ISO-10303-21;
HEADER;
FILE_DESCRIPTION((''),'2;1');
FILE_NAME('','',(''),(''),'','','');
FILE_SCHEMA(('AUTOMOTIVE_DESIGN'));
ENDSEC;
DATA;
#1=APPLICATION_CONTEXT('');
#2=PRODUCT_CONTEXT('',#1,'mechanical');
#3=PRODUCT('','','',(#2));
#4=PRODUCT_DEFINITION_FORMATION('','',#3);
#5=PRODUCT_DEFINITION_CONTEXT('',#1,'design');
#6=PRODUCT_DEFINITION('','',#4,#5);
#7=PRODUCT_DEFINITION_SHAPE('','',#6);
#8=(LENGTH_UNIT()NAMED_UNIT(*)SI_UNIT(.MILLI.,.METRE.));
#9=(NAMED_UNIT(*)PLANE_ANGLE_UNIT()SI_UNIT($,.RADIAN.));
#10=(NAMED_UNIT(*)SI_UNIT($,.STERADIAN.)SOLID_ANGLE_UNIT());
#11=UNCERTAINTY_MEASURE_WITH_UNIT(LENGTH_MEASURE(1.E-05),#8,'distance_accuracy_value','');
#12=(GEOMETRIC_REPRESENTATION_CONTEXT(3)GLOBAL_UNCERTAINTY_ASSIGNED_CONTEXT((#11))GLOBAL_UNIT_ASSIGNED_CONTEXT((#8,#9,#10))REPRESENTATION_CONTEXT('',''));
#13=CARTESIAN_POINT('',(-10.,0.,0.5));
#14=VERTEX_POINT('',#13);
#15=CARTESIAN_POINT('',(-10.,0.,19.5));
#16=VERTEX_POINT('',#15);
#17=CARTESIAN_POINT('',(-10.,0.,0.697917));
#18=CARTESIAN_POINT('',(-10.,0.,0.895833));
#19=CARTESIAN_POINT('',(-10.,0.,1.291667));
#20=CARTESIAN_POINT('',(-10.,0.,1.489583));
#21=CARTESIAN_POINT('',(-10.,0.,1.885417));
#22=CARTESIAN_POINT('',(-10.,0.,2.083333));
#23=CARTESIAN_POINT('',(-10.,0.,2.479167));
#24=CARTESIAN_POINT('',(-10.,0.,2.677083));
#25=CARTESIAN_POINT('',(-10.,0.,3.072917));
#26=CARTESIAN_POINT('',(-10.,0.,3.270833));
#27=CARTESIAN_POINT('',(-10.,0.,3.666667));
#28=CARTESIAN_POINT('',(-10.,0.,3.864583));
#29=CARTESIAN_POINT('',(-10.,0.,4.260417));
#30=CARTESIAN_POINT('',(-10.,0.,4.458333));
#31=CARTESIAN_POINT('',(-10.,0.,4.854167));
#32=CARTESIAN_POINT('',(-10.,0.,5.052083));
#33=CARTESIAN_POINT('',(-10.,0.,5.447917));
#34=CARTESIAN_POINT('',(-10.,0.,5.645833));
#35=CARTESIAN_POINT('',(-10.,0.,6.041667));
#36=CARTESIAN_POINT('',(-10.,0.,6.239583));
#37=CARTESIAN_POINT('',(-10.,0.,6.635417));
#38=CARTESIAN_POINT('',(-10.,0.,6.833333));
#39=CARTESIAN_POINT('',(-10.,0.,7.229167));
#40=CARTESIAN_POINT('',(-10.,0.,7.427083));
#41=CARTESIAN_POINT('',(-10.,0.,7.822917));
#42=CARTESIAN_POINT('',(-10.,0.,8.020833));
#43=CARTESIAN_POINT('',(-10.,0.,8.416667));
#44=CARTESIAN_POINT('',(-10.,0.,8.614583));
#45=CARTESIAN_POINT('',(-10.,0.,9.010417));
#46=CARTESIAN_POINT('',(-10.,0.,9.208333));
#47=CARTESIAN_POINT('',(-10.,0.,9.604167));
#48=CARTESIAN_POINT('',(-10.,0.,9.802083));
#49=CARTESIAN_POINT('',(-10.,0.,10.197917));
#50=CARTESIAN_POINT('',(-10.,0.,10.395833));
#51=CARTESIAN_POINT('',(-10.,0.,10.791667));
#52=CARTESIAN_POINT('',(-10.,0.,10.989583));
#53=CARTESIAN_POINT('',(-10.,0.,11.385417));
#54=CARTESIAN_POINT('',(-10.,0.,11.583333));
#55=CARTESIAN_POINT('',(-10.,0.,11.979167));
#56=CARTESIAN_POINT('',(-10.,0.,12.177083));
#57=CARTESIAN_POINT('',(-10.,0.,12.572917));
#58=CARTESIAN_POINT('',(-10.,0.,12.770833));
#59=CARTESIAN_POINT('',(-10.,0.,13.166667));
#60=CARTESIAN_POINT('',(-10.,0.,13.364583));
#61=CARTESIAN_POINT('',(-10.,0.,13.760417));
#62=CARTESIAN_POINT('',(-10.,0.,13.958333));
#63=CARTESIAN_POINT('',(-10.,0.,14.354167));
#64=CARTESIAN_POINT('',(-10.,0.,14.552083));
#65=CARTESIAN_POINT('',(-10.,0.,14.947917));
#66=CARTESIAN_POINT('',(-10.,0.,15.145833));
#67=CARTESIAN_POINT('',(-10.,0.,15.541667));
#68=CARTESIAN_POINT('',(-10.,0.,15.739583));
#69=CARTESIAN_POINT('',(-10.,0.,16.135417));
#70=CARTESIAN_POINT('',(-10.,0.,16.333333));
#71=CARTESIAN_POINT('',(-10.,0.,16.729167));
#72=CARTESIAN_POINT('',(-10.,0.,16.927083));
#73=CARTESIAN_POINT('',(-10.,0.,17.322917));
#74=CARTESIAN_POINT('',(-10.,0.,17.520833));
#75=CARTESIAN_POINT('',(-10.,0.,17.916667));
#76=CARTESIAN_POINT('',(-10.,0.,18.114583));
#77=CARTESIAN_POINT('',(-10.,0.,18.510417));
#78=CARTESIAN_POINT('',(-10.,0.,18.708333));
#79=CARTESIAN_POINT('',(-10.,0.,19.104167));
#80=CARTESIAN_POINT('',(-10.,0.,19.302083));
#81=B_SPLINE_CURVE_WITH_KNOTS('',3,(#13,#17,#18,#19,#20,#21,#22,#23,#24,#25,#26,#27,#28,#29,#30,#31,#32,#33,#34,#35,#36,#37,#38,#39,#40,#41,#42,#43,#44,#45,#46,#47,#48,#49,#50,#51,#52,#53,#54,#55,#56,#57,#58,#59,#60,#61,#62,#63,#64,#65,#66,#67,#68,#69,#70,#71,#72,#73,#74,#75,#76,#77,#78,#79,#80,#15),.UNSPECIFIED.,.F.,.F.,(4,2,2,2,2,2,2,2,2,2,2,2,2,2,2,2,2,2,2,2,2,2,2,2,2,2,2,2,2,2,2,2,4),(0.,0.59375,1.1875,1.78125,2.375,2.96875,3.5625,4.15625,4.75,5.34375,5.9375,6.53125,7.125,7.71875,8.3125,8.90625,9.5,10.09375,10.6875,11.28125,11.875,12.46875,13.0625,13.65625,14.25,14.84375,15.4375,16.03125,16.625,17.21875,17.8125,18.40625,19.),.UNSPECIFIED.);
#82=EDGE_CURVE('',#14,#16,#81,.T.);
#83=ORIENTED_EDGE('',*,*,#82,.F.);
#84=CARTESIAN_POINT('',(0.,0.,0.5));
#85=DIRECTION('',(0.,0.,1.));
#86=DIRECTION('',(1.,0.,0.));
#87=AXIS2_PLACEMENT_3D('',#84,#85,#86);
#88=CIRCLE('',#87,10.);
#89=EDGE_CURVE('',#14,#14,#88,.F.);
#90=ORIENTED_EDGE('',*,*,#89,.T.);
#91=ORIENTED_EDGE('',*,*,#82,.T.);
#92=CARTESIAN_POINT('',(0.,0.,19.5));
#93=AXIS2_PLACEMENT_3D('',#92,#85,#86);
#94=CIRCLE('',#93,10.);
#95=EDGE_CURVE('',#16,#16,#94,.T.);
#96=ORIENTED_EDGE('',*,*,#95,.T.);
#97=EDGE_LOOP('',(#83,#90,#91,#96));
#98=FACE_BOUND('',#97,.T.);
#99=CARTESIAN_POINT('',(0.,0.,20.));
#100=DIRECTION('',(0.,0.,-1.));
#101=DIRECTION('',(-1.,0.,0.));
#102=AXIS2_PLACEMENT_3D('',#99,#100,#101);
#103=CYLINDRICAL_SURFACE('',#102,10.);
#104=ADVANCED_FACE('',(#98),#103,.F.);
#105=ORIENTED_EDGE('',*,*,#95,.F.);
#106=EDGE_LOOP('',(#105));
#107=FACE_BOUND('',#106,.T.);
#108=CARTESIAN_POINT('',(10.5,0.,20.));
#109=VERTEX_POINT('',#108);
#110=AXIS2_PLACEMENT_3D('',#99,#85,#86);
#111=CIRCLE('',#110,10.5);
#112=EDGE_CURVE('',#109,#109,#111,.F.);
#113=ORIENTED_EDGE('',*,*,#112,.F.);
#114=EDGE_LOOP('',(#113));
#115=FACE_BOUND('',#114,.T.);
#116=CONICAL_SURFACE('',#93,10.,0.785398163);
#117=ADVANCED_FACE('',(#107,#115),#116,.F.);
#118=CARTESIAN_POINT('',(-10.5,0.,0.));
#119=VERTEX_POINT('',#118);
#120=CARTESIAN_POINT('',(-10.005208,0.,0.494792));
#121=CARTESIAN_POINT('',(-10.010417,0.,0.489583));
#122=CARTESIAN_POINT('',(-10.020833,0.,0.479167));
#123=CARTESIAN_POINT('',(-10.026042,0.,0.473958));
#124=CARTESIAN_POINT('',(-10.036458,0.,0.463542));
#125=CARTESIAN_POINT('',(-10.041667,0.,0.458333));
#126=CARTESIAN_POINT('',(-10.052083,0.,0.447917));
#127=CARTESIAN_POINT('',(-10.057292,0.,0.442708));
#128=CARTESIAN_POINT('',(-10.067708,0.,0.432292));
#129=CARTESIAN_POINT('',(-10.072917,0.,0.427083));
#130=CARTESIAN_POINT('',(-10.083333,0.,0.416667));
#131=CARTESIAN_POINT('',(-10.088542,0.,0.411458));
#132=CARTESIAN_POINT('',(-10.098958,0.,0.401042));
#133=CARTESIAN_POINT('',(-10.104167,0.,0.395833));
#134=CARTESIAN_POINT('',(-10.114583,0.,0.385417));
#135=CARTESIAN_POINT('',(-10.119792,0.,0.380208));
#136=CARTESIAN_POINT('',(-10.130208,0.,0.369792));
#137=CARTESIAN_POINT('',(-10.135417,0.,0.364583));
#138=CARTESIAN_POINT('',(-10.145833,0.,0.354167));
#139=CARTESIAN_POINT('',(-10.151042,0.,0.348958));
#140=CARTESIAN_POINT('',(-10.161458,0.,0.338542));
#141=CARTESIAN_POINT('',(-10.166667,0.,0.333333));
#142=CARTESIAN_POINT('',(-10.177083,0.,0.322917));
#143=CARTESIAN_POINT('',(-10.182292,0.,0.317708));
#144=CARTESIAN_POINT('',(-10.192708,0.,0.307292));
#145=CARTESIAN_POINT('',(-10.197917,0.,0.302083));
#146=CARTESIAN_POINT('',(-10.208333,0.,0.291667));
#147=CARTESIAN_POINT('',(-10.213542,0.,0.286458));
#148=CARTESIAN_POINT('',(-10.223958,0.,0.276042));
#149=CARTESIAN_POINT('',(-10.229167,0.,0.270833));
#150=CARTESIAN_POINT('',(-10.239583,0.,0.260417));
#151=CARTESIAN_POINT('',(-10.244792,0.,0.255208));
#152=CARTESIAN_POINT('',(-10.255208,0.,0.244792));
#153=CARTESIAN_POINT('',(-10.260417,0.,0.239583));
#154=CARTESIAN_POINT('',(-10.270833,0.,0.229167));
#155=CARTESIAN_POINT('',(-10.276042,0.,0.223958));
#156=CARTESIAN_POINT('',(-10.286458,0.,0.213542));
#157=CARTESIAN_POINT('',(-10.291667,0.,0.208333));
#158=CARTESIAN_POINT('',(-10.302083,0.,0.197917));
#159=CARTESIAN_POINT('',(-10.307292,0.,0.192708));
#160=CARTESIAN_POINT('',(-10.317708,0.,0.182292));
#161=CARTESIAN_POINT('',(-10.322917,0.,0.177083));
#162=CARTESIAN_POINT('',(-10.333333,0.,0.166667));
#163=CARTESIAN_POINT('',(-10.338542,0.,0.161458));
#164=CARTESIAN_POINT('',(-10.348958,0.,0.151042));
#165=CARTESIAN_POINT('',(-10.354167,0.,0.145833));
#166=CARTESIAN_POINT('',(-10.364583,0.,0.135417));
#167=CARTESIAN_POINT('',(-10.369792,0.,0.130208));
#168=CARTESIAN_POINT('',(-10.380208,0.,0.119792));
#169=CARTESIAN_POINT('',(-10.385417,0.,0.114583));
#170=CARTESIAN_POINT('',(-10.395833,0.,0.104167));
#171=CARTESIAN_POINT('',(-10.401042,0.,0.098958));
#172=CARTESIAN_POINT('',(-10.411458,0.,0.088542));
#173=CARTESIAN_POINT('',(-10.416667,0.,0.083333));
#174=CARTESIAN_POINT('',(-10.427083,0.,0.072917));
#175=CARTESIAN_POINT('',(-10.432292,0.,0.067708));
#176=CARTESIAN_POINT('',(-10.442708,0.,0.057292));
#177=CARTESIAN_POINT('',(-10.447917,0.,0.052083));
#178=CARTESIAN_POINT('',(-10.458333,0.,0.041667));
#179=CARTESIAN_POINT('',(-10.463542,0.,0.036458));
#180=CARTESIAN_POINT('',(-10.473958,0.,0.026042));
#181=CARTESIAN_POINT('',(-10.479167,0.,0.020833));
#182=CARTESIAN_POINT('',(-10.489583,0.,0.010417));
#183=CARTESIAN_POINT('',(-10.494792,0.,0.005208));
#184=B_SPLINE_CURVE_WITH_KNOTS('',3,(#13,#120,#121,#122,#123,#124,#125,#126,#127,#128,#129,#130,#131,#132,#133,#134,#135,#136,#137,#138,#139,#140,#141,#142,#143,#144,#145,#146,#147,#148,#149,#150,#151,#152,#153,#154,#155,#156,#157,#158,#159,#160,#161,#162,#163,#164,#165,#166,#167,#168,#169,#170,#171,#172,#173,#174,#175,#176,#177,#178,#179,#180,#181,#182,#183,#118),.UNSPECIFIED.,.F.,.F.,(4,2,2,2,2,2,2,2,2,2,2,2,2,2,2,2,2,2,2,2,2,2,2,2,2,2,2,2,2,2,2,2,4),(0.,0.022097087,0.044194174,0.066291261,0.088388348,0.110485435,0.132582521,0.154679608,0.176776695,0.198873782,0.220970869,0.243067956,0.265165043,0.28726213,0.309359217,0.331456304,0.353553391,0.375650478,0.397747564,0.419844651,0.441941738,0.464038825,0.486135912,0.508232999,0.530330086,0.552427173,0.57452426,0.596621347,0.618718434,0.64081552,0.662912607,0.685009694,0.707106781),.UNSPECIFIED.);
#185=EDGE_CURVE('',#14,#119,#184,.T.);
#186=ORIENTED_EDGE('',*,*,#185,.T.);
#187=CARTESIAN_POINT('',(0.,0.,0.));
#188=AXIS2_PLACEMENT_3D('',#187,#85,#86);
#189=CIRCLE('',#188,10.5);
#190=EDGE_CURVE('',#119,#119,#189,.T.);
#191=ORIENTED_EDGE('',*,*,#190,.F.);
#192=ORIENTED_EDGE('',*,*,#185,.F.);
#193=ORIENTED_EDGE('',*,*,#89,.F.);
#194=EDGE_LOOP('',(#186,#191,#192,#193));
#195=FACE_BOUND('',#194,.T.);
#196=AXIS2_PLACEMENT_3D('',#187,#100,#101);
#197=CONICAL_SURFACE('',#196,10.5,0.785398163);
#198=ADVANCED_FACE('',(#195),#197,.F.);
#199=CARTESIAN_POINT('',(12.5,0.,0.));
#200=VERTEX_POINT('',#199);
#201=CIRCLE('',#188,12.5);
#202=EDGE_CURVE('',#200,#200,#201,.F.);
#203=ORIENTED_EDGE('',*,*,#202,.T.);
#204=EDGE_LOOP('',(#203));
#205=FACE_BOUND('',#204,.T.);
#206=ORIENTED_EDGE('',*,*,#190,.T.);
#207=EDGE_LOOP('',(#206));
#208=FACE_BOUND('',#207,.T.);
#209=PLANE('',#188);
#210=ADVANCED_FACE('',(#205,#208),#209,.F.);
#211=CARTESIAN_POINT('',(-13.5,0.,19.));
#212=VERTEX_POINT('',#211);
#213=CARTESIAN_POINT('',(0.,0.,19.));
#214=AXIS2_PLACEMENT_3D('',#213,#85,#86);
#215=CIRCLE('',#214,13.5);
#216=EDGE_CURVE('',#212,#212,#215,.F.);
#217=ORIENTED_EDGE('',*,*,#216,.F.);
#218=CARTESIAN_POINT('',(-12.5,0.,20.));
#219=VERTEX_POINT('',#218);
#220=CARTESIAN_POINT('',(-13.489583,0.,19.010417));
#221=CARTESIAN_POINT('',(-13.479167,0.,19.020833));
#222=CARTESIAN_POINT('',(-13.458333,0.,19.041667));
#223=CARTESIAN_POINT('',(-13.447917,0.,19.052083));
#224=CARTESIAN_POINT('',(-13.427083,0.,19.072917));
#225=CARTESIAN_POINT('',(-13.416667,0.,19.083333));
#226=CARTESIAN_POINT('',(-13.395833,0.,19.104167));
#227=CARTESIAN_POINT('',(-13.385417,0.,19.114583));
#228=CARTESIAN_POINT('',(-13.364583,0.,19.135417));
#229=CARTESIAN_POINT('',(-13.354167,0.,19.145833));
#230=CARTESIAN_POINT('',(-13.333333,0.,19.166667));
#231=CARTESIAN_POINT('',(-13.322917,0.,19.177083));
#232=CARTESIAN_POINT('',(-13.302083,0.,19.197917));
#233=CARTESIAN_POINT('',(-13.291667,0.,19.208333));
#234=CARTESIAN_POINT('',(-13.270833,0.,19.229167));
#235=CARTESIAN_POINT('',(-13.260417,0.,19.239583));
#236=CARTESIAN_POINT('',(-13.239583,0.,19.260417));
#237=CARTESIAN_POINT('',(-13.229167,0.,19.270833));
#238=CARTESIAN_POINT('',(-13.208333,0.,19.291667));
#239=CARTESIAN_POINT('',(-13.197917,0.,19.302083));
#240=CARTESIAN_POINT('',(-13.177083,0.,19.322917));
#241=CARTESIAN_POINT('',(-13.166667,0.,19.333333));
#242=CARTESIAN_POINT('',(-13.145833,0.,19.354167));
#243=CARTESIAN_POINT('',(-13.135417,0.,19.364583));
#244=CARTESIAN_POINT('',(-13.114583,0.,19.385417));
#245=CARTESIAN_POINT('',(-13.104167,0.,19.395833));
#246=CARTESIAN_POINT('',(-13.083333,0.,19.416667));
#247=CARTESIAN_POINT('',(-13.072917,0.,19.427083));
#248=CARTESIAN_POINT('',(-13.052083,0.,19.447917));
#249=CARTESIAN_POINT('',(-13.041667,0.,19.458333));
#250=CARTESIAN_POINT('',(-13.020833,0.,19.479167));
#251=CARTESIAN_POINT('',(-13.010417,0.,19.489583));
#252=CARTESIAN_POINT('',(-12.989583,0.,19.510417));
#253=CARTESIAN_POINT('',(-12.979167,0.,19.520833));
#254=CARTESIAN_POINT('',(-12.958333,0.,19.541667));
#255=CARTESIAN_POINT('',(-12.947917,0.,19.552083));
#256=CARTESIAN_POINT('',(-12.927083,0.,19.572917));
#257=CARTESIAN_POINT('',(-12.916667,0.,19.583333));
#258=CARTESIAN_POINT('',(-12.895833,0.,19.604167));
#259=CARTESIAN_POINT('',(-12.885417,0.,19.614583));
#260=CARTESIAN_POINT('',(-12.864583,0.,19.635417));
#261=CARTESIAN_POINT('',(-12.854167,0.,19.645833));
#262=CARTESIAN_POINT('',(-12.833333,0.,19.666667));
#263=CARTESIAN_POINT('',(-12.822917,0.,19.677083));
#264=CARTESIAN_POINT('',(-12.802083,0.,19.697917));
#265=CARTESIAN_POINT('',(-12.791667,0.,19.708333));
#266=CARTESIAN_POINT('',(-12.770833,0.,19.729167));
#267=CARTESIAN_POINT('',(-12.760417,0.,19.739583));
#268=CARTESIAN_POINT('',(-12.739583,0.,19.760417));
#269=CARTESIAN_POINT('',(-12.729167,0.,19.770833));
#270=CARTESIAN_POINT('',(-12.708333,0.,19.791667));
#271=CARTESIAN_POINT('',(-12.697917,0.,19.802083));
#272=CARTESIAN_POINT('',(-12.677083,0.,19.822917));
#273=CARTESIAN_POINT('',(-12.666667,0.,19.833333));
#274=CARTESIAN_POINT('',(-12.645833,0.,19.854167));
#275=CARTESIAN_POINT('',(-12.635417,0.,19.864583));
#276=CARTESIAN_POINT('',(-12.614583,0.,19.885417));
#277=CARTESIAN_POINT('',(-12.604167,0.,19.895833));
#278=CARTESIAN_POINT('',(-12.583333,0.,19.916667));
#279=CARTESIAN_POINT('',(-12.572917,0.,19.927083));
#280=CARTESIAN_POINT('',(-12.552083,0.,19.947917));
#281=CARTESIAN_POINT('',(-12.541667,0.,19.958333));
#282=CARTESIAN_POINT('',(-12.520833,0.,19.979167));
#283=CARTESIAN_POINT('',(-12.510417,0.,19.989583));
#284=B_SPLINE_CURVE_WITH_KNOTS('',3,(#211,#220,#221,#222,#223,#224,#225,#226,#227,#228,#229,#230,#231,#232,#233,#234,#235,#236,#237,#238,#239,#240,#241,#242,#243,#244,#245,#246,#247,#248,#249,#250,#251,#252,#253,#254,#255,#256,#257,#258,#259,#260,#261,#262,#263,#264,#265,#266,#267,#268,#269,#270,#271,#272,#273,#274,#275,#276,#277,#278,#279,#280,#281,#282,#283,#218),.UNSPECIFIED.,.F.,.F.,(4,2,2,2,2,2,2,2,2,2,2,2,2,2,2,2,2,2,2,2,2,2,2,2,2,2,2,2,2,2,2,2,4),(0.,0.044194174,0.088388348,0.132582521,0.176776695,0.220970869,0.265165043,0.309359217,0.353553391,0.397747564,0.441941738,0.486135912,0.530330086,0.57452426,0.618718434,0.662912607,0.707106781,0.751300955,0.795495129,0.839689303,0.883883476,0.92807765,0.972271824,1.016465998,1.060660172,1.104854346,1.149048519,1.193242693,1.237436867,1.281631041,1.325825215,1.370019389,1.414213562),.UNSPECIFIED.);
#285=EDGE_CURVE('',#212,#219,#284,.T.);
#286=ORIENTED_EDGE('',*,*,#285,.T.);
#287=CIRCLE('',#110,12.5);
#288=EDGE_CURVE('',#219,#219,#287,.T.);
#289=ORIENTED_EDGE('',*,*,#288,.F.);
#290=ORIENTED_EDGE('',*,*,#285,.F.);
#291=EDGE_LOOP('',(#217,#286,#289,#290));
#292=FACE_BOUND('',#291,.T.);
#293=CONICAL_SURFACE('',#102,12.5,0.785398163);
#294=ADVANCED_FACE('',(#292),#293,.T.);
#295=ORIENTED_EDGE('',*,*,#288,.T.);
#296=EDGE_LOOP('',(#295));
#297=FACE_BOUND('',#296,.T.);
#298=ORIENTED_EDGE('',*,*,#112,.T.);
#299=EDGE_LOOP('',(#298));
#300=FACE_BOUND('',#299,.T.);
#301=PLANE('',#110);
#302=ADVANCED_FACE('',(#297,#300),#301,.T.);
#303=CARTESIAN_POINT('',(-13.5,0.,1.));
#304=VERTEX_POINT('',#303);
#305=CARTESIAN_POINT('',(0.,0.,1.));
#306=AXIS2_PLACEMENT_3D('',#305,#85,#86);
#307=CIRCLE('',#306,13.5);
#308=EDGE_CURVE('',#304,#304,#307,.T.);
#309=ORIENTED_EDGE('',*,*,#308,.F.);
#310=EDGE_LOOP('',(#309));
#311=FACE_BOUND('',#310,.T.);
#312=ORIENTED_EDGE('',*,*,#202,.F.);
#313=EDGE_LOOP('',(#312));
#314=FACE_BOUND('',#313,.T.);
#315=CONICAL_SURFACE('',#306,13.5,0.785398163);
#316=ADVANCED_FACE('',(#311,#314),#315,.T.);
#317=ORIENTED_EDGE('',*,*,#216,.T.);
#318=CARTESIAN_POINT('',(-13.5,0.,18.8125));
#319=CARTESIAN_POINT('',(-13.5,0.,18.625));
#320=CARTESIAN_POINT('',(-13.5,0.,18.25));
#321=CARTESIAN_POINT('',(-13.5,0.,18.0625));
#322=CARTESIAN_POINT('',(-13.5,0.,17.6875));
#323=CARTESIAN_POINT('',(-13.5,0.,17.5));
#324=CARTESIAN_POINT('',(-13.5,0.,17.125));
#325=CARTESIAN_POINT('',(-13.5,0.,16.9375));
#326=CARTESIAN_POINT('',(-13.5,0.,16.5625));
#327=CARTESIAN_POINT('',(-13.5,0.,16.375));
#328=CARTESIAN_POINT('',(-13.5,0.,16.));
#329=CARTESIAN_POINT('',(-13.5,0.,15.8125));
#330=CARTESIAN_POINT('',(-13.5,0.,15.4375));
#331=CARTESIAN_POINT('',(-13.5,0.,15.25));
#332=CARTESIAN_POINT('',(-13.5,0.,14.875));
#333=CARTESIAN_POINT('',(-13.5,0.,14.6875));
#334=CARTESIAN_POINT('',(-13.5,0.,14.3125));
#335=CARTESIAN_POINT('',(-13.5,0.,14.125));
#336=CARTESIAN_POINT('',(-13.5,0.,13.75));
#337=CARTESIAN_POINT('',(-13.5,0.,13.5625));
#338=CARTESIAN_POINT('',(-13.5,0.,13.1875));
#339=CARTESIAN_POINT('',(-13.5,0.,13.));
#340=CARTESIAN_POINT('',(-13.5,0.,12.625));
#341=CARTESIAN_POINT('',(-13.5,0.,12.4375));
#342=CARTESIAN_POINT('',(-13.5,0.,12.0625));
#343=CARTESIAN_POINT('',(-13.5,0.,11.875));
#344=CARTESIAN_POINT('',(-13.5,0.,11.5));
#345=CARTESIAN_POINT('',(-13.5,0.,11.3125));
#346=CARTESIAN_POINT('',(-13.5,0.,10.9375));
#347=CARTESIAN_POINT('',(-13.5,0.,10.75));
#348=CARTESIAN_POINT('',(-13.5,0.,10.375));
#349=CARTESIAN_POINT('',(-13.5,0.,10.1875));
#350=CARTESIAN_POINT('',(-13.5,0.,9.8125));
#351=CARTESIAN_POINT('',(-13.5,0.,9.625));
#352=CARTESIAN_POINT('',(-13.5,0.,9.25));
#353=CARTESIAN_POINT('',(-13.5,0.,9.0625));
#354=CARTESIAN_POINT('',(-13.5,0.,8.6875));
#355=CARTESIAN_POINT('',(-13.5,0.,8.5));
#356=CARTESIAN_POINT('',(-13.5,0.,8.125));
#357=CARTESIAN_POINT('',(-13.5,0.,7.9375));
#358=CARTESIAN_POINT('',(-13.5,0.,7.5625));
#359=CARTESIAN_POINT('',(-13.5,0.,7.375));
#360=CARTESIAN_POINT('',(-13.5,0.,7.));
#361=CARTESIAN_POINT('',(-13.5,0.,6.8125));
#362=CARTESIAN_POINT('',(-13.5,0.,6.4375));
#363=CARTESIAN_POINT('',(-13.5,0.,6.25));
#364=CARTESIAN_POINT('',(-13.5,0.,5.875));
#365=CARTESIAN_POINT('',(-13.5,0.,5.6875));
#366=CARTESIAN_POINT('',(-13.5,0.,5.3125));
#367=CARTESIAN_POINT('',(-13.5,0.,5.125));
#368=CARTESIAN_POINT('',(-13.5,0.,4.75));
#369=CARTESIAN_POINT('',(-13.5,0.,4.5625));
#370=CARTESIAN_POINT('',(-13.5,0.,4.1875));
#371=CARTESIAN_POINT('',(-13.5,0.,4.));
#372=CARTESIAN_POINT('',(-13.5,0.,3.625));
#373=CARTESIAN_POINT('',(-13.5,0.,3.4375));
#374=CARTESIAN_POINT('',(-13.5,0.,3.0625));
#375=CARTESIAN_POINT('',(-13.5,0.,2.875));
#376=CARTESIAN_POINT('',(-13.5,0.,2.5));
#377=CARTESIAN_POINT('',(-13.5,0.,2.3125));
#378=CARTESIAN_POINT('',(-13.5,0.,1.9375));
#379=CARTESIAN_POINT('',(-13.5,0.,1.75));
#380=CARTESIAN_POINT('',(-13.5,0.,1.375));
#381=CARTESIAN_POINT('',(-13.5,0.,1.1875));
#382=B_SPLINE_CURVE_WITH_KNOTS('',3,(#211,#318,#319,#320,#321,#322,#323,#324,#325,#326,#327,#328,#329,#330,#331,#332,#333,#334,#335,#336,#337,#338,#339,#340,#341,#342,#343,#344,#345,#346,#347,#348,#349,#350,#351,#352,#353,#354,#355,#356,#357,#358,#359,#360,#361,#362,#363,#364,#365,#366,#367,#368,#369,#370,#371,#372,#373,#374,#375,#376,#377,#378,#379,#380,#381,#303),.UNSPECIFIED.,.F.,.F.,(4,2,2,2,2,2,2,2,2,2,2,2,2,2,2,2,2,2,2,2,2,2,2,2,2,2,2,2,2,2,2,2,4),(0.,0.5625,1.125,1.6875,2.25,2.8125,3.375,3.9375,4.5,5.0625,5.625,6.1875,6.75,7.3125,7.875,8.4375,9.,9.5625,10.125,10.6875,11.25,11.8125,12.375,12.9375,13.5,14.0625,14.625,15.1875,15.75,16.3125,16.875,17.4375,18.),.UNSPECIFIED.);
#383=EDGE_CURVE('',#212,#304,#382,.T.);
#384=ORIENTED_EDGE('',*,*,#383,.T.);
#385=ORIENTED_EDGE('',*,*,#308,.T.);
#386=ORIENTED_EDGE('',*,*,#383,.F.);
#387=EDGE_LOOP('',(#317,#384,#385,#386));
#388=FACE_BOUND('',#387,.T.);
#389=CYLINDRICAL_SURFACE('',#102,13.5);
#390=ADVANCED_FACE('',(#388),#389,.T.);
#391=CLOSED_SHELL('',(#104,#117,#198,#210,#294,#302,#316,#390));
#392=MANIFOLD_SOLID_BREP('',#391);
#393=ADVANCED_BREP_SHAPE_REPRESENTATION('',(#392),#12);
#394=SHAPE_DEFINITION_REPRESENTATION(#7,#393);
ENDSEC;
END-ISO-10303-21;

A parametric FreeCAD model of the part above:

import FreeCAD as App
import Part
import Sketcher
Q = App.Units.Quantity


def edges_at(feature, points):
    """Names of the edges that pass closest to the given points."""
    edges = feature.Shape.Edges
    near = lambda p: min(range(len(edges)), key=lambda i: edges[i].distToShape(Part.Vertex(*p))[0])
    return sorted({f"Edge{near(p) + 1}" for p in points})

doc = App.newDocument("Part")
params = doc.addObject("Spreadsheet::Sheet", "Params")
for row, (alias, value) in enumerate([
    ("sketch1_diameter", "27 mm"),
    ("sketch1_diameter2", "20 mm"),
    ("pad1_length", "20 mm"),
    ("chamfer_size", "1 mm"),
    ("chamfer2_size", "0.5 mm"),
], start=1):
    params.set(f"A{row}", alias)
    params.set(f"B{row}", "=" + value)
    params.setAlias(f"B{row}", alias)

body = doc.addObject("PartDesign::Body", "Body")

sketch1 = doc.addObject("Sketcher::SketchObject", "Sketch")
body.addObject(sketch1)
sketch1.AttachmentSupport = (doc.XY_Plane, [""])
sketch1.MapMode = "FlatFace"
sketch1.addGeometry([
    Part.Circle(App.Vector(0, 0, 0), App.Vector(0, 0, 1), 14),
    Part.Circle(App.Vector(0, 0, 0), App.Vector(0, 0, 1), 10),
], False)
sketch1.addConstraint([
    Sketcher.Constraint("Coincident", 0, 3, -1, 1),
    Sketcher.Constraint("Coincident", 1, 3, -1, 1),
    Sketcher.Constraint("Diameter", 0, Q("27 mm")),
    Sketcher.Constraint("Diameter", 1, Q("20 mm")),
])
sketch1.setExpression("Constraints[2]", "Params.sketch1_diameter")
sketch1.setExpression("Constraints[3]", "Params.sketch1_diameter2")
pad1 = doc.addObject("PartDesign::Pad", "Pad")
body.addObject(pad1)
pad1.Profile = sketch1
pad1.setExpression("Length", "Params.pad1_length")
doc.recompute()

chamfer = doc.addObject("PartDesign::Chamfer", "Chamfer")
body.addObject(chamfer)
chamfer.Base = (pad1, edges_at(pad1, [(-13.5, 0, 0), (-13.5, 0, 20)]))
chamfer.setExpression("Size", "Params.chamfer_size")
doc.recompute()

chamfer2 = doc.addObject("PartDesign::Chamfer", "Chamfer001")
body.addObject(chamfer2)
chamfer2.Base = (chamfer, edges_at(chamfer, [(-10, 0, 0), (-10, 0, 20)]))
chamfer2.setExpression("Size", "Params.chamfer2_size")

doc.recompute()
